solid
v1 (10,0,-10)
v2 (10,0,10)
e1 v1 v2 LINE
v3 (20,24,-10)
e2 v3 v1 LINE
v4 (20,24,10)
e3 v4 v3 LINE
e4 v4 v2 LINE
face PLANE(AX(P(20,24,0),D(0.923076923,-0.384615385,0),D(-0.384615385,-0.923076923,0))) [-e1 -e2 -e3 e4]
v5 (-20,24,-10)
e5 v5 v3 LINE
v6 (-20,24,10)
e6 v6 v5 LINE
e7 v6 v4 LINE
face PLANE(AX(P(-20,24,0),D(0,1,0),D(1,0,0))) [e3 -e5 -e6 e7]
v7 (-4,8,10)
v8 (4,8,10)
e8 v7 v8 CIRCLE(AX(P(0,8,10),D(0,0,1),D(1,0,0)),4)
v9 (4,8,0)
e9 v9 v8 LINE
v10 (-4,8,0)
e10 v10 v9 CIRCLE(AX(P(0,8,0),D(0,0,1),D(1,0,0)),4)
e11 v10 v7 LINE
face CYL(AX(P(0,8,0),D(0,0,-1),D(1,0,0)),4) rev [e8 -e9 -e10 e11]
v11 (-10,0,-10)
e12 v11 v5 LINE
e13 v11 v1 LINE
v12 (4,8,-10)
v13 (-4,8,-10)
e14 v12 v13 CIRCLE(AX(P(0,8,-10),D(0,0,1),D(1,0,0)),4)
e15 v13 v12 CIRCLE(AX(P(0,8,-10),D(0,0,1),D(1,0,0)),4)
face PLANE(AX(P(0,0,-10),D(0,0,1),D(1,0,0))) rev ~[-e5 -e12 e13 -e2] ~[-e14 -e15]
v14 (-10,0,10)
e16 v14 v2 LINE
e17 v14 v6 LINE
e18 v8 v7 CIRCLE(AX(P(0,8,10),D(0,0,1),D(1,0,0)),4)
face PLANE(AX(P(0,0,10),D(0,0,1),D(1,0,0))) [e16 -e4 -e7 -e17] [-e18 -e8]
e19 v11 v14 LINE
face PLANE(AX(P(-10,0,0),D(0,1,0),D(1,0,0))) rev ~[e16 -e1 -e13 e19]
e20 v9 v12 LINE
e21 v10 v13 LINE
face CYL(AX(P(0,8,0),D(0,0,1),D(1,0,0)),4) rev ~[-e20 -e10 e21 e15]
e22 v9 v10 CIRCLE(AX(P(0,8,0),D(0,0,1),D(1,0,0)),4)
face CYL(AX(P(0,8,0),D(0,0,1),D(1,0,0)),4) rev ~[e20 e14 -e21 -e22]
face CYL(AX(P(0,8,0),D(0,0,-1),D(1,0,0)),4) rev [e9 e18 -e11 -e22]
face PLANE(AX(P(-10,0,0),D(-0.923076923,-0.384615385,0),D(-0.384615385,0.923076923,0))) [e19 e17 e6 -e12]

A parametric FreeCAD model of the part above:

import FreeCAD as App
import Part
import Sketcher
from FreeCAD import Vector

doc = App.newDocument("Part")
body = doc.addObject("PartDesign::Body", "Body")

# Sketch on XY plane
sketch1 = doc.addObject("Sketcher::SketchObject", "Sketch")
body.addObject(sketch1)
sketch1.AttachmentSupport = (doc.XY_Plane, [""])
sketch1.MapMode = "FlatFace"
sketch1.addGeometry(Part.LineSegment(Vector(-20, 24, 0), Vector(-10, 0, 0)), False)
sketch1.addGeometry(Part.LineSegment(Vector(-10, 0, 0), Vector(10, 0, 0)), False)
sketch1.addGeometry(Part.LineSegment(Vector(10, 0, 0), Vector(20, 24, 0)), False)
sketch1.addGeometry(Part.LineSegment(Vector(20, 24, 0), Vector(-20, 24, 0)), False)
sketch1.addGeometry(Part.Circle(Vector(0, 8, 0), Vector(0, 0, 1), 4), False)
sketch1.addConstraint(Sketcher.Constraint("Coincident", 0, 2, 1, 1))
sketch1.addConstraint(Sketcher.Constraint("Coincident", 1, 2, 2, 1))
sketch1.addConstraint(Sketcher.Constraint("Coincident", 2, 2, 3, 1))
sketch1.addConstraint(Sketcher.Constraint("Coincident", 3, 2, 0, 1))
sketch1.addConstraint(Sketcher.Constraint("Horizontal", 1))
sketch1.addConstraint(Sketcher.Constraint("Horizontal", 3))
sketch1.addConstraint(Sketcher.Constraint("Symmetric", 0, 2, 1, 2, -1, 1))
sketch1.addConstraint(Sketcher.Constraint("PointOnObject", 4, 3, -2))
sketch1.addConstraint(Sketcher.Constraint("Equal", 0, 2))
sketch1.addConstraint(Sketcher.Constraint("Diameter", 4, 8.0))
sketch1.addConstraint(Sketcher.Constraint("DistanceX", 1, 1, 1, 2, 20.0))
sketch1.addConstraint(Sketcher.Constraint("DistanceX", 3, 2, 3, 1, 40.0))
sketch1.addConstraint(Sketcher.Constraint("DistanceY", -1, 1, 4, 3, 8.0))
sketch1.addConstraint(Sketcher.Constraint("DistanceY", -1, 1, 2, 2, 24.0))
pad1 = doc.addObject("PartDesign::Pad", "Pad")
body.addObject(pad1)
pad1.Profile = sketch1
pad1.Length = 20
pad1.Midplane = True

doc.recompute()
